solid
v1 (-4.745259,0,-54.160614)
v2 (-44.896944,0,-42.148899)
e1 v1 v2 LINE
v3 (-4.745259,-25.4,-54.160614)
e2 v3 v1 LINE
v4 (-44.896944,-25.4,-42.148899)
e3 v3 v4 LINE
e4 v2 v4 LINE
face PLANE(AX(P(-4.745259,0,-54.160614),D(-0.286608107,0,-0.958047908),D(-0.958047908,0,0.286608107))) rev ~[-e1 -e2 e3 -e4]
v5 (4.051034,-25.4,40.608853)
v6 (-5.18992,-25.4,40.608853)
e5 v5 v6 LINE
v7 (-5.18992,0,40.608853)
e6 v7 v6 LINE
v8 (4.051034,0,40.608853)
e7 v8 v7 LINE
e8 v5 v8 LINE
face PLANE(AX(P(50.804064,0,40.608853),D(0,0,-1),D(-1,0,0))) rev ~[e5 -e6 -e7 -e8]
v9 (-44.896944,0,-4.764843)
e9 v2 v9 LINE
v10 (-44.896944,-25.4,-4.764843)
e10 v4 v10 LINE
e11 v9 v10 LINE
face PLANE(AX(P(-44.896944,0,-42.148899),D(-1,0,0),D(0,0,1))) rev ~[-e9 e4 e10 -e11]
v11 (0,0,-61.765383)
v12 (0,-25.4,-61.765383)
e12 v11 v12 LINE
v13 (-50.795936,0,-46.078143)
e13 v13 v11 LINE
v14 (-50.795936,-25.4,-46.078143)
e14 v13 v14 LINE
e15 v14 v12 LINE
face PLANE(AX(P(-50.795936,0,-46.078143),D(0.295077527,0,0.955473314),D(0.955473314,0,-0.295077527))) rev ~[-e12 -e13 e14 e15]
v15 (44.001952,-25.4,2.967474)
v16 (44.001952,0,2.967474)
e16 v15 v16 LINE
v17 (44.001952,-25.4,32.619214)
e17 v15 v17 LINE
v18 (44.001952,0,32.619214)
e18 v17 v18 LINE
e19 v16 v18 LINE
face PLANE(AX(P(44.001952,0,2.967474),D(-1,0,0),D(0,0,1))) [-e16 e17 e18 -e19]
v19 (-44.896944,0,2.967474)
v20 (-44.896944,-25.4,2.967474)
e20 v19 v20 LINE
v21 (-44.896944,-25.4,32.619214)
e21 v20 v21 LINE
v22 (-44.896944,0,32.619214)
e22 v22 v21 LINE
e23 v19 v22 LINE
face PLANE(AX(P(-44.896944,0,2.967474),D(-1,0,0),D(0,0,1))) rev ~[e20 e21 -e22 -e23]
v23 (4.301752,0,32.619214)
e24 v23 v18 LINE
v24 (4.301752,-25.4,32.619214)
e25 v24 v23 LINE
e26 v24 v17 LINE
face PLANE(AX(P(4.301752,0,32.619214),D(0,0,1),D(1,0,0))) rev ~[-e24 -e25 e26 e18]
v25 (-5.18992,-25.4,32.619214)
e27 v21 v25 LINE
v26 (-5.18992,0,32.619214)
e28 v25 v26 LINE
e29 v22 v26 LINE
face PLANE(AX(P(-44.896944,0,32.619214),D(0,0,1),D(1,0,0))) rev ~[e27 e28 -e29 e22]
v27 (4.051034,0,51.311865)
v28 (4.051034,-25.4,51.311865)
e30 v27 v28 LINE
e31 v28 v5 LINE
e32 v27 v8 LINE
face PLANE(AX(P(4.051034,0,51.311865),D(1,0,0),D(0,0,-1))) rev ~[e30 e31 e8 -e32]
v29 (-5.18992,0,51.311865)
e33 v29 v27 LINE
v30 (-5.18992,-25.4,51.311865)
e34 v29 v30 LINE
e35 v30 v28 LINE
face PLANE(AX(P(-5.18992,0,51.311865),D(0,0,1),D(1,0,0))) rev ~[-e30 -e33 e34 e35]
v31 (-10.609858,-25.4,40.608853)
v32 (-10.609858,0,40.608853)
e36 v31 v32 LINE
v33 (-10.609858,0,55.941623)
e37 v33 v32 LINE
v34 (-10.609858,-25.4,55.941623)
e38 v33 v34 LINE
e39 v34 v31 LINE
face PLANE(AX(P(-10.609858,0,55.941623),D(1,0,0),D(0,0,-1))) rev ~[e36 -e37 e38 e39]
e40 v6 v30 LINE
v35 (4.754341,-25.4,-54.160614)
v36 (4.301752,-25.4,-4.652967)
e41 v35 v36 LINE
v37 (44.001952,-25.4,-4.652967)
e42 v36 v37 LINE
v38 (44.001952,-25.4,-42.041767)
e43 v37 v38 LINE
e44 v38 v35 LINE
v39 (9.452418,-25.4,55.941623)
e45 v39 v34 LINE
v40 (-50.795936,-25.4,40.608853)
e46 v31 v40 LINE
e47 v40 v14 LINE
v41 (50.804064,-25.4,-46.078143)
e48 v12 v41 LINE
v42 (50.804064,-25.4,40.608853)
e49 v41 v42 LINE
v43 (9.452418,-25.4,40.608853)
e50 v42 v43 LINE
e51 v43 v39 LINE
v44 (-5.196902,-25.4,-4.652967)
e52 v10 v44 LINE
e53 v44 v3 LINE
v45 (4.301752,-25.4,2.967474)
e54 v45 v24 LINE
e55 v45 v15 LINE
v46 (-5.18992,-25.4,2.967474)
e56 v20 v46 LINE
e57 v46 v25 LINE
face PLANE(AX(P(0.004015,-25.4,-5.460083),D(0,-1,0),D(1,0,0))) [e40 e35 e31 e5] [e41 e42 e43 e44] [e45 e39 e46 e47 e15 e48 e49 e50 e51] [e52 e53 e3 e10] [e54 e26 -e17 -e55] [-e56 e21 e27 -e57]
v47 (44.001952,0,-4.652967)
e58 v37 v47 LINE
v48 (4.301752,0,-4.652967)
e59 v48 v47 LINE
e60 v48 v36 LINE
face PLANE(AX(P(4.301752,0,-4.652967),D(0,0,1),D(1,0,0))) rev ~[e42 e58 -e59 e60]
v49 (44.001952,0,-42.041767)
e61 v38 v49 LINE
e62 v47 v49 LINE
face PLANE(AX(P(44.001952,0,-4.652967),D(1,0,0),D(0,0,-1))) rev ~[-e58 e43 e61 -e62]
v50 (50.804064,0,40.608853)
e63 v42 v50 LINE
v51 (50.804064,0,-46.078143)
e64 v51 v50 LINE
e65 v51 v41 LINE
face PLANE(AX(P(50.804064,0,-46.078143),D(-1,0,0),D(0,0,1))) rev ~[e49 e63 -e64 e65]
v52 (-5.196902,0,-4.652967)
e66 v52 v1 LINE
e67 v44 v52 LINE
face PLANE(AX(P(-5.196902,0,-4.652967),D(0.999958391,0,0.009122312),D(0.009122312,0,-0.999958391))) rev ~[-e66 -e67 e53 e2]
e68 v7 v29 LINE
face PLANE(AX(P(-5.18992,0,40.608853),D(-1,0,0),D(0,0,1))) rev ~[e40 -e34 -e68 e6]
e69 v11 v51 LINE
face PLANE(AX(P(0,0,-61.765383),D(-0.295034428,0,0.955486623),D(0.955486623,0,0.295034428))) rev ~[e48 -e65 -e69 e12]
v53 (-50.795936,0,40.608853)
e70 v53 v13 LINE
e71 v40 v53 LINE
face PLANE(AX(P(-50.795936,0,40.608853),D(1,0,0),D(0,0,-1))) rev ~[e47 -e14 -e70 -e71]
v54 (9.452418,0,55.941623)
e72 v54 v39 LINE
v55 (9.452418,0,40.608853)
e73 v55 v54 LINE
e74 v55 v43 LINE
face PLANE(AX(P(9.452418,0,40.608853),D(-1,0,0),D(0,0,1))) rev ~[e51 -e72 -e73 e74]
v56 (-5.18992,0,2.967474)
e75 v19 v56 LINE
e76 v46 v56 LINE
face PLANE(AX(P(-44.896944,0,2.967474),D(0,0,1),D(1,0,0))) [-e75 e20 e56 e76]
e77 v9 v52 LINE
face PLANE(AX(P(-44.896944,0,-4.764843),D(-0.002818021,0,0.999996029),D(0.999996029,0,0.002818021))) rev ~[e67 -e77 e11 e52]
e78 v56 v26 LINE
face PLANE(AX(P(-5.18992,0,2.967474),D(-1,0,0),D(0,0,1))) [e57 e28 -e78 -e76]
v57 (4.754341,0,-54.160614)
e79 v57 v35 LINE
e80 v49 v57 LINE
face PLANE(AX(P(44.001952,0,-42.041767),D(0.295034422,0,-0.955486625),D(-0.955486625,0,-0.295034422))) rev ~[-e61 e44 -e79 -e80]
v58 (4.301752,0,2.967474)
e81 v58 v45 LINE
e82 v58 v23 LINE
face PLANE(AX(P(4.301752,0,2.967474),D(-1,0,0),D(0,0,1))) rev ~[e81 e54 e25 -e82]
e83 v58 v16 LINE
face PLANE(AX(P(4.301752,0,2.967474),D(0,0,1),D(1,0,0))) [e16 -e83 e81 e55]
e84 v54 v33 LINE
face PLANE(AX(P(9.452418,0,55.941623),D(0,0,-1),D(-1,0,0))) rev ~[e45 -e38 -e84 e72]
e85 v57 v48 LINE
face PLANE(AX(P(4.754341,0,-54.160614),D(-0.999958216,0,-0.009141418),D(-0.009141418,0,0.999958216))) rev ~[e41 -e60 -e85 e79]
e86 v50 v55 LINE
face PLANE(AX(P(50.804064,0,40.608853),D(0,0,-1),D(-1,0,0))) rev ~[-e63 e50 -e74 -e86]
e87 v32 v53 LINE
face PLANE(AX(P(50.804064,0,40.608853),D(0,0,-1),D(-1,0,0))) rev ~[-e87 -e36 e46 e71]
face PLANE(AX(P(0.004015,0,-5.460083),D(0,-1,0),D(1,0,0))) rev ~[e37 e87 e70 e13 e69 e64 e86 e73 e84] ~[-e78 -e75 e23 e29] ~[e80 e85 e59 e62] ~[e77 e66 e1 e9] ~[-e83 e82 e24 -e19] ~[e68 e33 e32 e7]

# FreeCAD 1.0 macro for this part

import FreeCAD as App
import Part
import Sketcher
Q = App.Units.Quantity

doc = App.newDocument("Part")
body = doc.addObject("PartDesign::Body", "Body")

sketch1 = doc.addObject("Sketcher::SketchObject", "Sketch")
body.addObject(sketch1)
sketch1.AttachmentSupport = (doc.XZ_Plane, [""])
sketch1.MapMode = "FlatFace"
sketch1.addGeometry(Part.LineSegment(App.Vector(-51, 41, 0), App.Vector(-51, -46, 0)), False)
sketch1.addGeometry(Part.LineSegment(App.Vector(-51, -46, 0), App.Vector(0, -62, 0)), False)
sketch1.addGeometry(Part.LineSegment(App.Vector(0, -62, 0), App.Vector(51, -46, 0)), False)
sketch1.addGeometry(Part.LineSegment(App.Vector(51, -46, 0), App.Vector(51, 41, 0)), False)
sketch1.addGeometry(Part.LineSegment(App.Vector(51, 41, 0), App.Vector(-51, 41, 0)), False)
sketch1.addGeometry(Part.LineSegment(App.Vector(-5, -54, 0), App.Vector(-45, -42, 0)), False)
sketch1.addGeometry(Part.LineSegment(App.Vector(-45, -42, 0), App.Vector(-45, -5, 0)), False)
sketch1.addGeometry(Part.LineSegment(App.Vector(-45, -5, 0), App.Vector(-5, -5, 0)), False)
sketch1.addGeometry(Part.LineSegment(App.Vector(-5, -5, 0), App.Vector(-5, -54, 0)), False)
sketch1.addGeometry(Part.LineSegment(App.Vector(44, -42, 0), App.Vector(5, -54, 0)), False)
sketch1.addGeometry(Part.LineSegment(App.Vector(5, -54, 0), App.Vector(4, -5, 0)), False)
sketch1.addGeometry(Part.LineSegment(App.Vector(4, -5, 0), App.Vector(44, -5, 0)), False)
sketch1.addGeometry(Part.LineSegment(App.Vector(44, -5, 0), App.Vector(44, -42, 0)), False)
sketch1.addGeometry(Part.LineSegment(App.Vector(-5, 3, 0), App.Vector(-45, 3, 0)), False)
sketch1.addGeometry(Part.LineSegment(App.Vector(-45, 3, 0), App.Vector(-45, 33, 0)), False)
sketch1.addGeometry(Part.LineSegment(App.Vector(-45, 33, 0), App.Vector(-5, 33, 0)), False)
sketch1.addGeometry(Part.LineSegment(App.Vector(-5, 33, 0), App.Vector(-5, 3, 0)), False)
sketch1.addGeometry(Part.LineSegment(App.Vector(44, 3, 0), App.Vector(4, 3, 0)), False)
sketch1.addGeometry(Part.LineSegment(App.Vector(4, 3, 0), App.Vector(4, 33, 0)), False)
sketch1.addGeometry(Part.LineSegment(App.Vector(4, 33, 0), App.Vector(44, 33, 0)), False)
sketch1.addGeometry(Part.LineSegment(App.Vector(44, 33, 0), App.Vector(44, 3, 0)), False)
sketch1.addConstraint(Sketcher.Constraint("Coincident", 0, 2, 1, 1))
sketch1.addConstraint(Sketcher.Constraint("Coincident", 1, 2, 2, 1))
sketch1.addConstraint(Sketcher.Constraint("Coincident", 2, 2, 3, 1))
sketch1.addConstraint(Sketcher.Constraint("Coincident", 3, 2, 4, 1))
sketch1.addConstraint(Sketcher.Constraint("Coincident", 4, 2, 0, 1))
sketch1.addConstraint(Sketcher.Constraint("Coincident", 5, 2, 6, 1))
sketch1.addConstraint(Sketcher.Constraint("Coincident", 6, 2, 7, 1))
sketch1.addConstraint(Sketcher.Constraint("Coincident", 7, 2, 8, 1))
sketch1.addConstraint(Sketcher.Constraint("Coincident", 8, 2, 5, 1))
sketch1.addConstraint(Sketcher.Constraint("Coincident", 9, 2, 10, 1))
sketch1.addConstraint(Sketcher.Constraint("Coincident", 10, 2, 11, 1))
sketch1.addConstraint(Sketcher.Constraint("Coincident", 11, 2, 12, 1))
sketch1.addConstraint(Sketcher.Constraint("Coincident", 12, 2, 9, 1))
sketch1.addConstraint(Sketcher.Constraint("Coincident", 13, 2, 14, 1))
sketch1.addConstraint(Sketcher.Constraint("Coincident", 14, 2, 15, 1))
sketch1.addConstraint(Sketcher.Constraint("Coincident", 15, 2, 16, 1))
sketch1.addConstraint(Sketcher.Constraint("Coincident", 16, 2, 13, 1))
sketch1.addConstraint(Sketcher.Constraint("Coincident", 17, 2, 18, 1))
sketch1.addConstraint(Sketcher.Constraint("Coincident", 18, 2, 19, 1))
sketch1.addConstraint(Sketcher.Constraint("Coincident", 19, 2, 20, 1))
sketch1.addConstraint(Sketcher.Constraint("Coincident", 20, 2, 17, 1))
sketch1.addConstraint(Sketcher.Constraint("Vertical", 0))
sketch1.addConstraint(Sketcher.Constraint("Vertical", 3))
sketch1.addConstraint(Sketcher.Constraint("Horizontal", 4))
sketch1.addConstraint(Sketcher.Constraint("Vertical", 6))
sketch1.addConstraint(Sketcher.Constraint("Horizontal", 11))
sketch1.addConstraint(Sketcher.Constraint("Vertical", 12))
sketch1.addConstraint(Sketcher.Constraint("Horizontal", 13))
sketch1.addConstraint(Sketcher.Constraint("Vertical", 14))
sketch1.addConstraint(Sketcher.Constraint("Horizontal", 15))
sketch1.addConstraint(Sketcher.Constraint("Vertical", 16))
sketch1.addConstraint(Sketcher.Constraint("Horizontal", 17))
sketch1.addConstraint(Sketcher.Constraint("Vertical", 18))
sketch1.addConstraint(Sketcher.Constraint("Horizontal", 19))
sketch1.addConstraint(Sketcher.Constraint("Vertical", 20))
sketch1.addConstraint(Sketcher.Constraint("PointOnObject", 1, 2, -2))
sketch1.addConstraint(Sketcher.Constraint("Parallel", 2, 9))
sketch1.addConstraint(Sketcher.Constraint("Horizontal", 0, 2, 2, 2))
sketch1.addConstraint(Sketcher.Constraint("Horizontal", 8, 2, 9, 2))
sketch1.addConstraint(Sketcher.Constraint("Horizontal", 7, 2, 10, 2))
sketch1.addConstraint(Sketcher.Constraint("Horizontal", 16, 2, 17, 2))
sketch1.addConstraint(Sketcher.Constraint("Horizontal", 15, 2, 18, 2))
sketch1.addConstraint(Sketcher.Constraint("Vertical", 6, 2, 13, 2))
sketch1.addConstraint(Sketcher.Constraint("Vertical", 10, 2, 17, 2))
sketch1.addConstraint(Sketcher.Constraint("Vertical", 12, 2, 19, 2))
sketch1.addConstraint(Sketcher.Constraint("DistanceX", 4, 2, 4, 1, Q("4 in")))
sketch1.addConstraint(Sketcher.Constraint("DistanceX", 11, 1, 11, 2, Q("1.563 in")))
sketch1.addConstraint(Sketcher.Constraint("DistanceY", 12, 2, 12, 1, Q("1.472 in")))
sketch1.addConstraint(Sketcher.Constraint("Distance", 7, Q("1.563 in")))
sketch1.addConstraint(Sketcher.Constraint("DistanceX", 8, 2, 9, 2, Q("0.374 in")))
sketch1.addConstraint(Sketcher.Constraint("DistanceY", 0, 2, -1, 1, Q("1.8141001 in")))
sketch1.addConstraint(Sketcher.Constraint("DistanceY", 14, 1, 14, 2, Q("29.651739 mm")))
sketch1.addConstraint(Sketcher.Constraint("DistanceY", 5, 2, -1, 1, Q("42.148899 mm")))
sketch1.addConstraint(Sketcher.Constraint("DistanceX", 7, 2, -1, 1, Q("5.196902 mm")))
sketch1.addConstraint(Sketcher.Constraint("DistanceY", 0, 2, 6, 2, Q("41.3133 mm")))
sketch1.addConstraint(Sketcher.Constraint("Distance", 2, Q("53.170879 mm")))
sketch1.addConstraint(Sketcher.Constraint("DistanceX", 13, 2, 13, 1, Q("39.707024 mm")))
sketch1.addConstraint(Sketcher.Constraint("DistanceY", 0, 2, 0, 1, Q("86.686996 mm")))
sketch1.addConstraint(Sketcher.Constraint("DistanceX", 8, 2, -1, 1, Q("4.745259 mm")))
sketch1.addConstraint(Sketcher.Constraint("DistanceX", -1, 1, 10, 2, Q("4.301752 mm")))
sketch1.addConstraint(Sketcher.Constraint("DistanceY", 1, 2, 0, 2, Q("15.68724 mm")))
sketch1.addConstraint(Sketcher.Constraint("DistanceY", 5, 2, 7, 2, Q("37.495932 mm")))
sketch1.addConstraint(Sketcher.Constraint("DistanceY", 13, 2, 4, 2, Q("37.641379 mm")))
pad1 = doc.addObject("PartDesign::Pad", "Pad")
body.addObject(pad1)
pad1.Profile = sketch1
pad1.Length = Q("0.73 in")

sketch2 = doc.addObject("Sketcher::SketchObject", "Sketch001")
body.addObject(sketch2)
sketch2.AttachmentSupport = (doc.XZ_Plane, [""])
sketch2.MapMode = "FlatFace"
sketch2.addGeometry(Part.LineSegment(App.Vector(-51, 41, 0), App.Vector(-51, -46, 0)), False)
sketch2.addGeometry(Part.LineSegment(App.Vector(-51, -46, 0), App.Vector(0, -62, 0)), False)
sketch2.addGeometry(Part.LineSegment(App.Vector(0, -62, 0), App.Vector(51, -46, 0)), False)
sketch2.addGeometry(Part.LineSegment(App.Vector(51, -46, 0), App.Vector(51, 41, 0)), False)
sketch2.addGeometry(Part.LineSegment(App.Vector(51, 41, 0), App.Vector(9, 41, 0)), False)
sketch2.addGeometry(Part.LineSegment(App.Vector(9, 41, 0), App.Vector(9, 56, 0)), False)
sketch2.addGeometry(Part.LineSegment(App.Vector(9, 56, 0), App.Vector(-11, 56, 0)), False)
sketch2.addGeometry(Part.LineSegment(App.Vector(-11, 56, 0), App.Vector(-11, 41, 0)), False)
sketch2.addGeometry(Part.LineSegment(App.Vector(-11, 41, 0), App.Vector(-51, 41, 0)), False)
sketch2.addGeometry(Part.LineSegment(App.Vector(4, 41, 0), App.Vector(-5, 41, 0)), False)
sketch2.addGeometry(Part.LineSegment(App.Vector(-5, 41, 0), App.Vector(-5, 51, 0)), False)
sketch2.addGeometry(Part.LineSegment(App.Vector(-5, 51, 0), App.Vector(4, 51, 0)), False)
sketch2.addGeometry(Part.LineSegment(App.Vector(4, 51, 0), App.Vector(4, 41, 0)), False)
sketch2.addGeometry(Part.LineSegment(App.Vector(-5, -54, 0), App.Vector(-45, -42, 0)), False)
sketch2.addGeometry(Part.LineSegment(App.Vector(-45, -42, 0), App.Vector(-45, -5, 0)), False)
sketch2.addGeometry(Part.LineSegment(App.Vector(-45, -5, 0), App.Vector(-5, -5, 0)), False)
sketch2.addGeometry(Part.LineSegment(App.Vector(-5, -5, 0), App.Vector(-5, -54, 0)), False)
sketch2.addGeometry(Part.LineSegment(App.Vector(44, -42, 0), App.Vector(5, -54, 0)), False)
sketch2.addGeometry(Part.LineSegment(App.Vector(5, -54, 0), App.Vector(4, -5, 0)), False)
sketch2.addGeometry(Part.LineSegment(App.Vector(4, -5, 0), App.Vector(44, -5, 0)), False)
sketch2.addGeometry(Part.LineSegment(App.Vector(44, -5, 0), App.Vector(44, -42, 0)), False)
sketch2.addGeometry(Part.LineSegment(App.Vector(-5, 3, 0), App.Vector(-45, 3, 0)), False)
sketch2.addGeometry(Part.LineSegment(App.Vector(-45, 3, 0), App.Vector(-45, 33, 0)), False)
sketch2.addGeometry(Part.LineSegment(App.Vector(-45, 33, 0), App.Vector(-5, 33, 0)), False)
sketch2.addGeometry(Part.LineSegment(App.Vector(-5, 33, 0), App.Vector(-5, 3, 0)), False)
sketch2.addGeometry(Part.LineSegment(App.Vector(44, 3, 0), App.Vector(4, 3, 0)), False)
sketch2.addGeometry(Part.LineSegment(App.Vector(4, 3, 0), App.Vector(4, 33, 0)), False)
sketch2.addGeometry(Part.LineSegment(App.Vector(4, 33, 0), App.Vector(44, 33, 0)), False)
sketch2.addGeometry(Part.LineSegment(App.Vector(44, 33, 0), App.Vector(44, 3, 0)), False)
sketch2.addConstraint(Sketcher.Constraint("Coincident", 0, 2, 1, 1))
sketch2.addConstraint(Sketcher.Constraint("Coincident", 1, 2, 2, 1))
sketch2.addConstraint(Sketcher.Constraint("Coincident", 2, 2, 3, 1))
sketch2.addConstraint(Sketcher.Constraint("Coincident", 3, 2, 4, 1))
sketch2.addConstraint(Sketcher.Constraint("Coincident", 4, 2, 5, 1))
sketch2.addConstraint(Sketcher.Constraint("Coincident", 5, 2, 6, 1))
sketch2.addConstraint(Sketcher.Constraint("Coincident", 6, 2, 7, 1))
sketch2.addConstraint(Sketcher.Constraint("Coincident", 7, 2, 8, 1))
sketch2.addConstraint(Sketcher.Constraint("Coincident", 8, 2, 0, 1))
sketch2.addConstraint(Sketcher.Constraint("Coincident", 9, 2, 10, 1))
sketch2.addConstraint(Sketcher.Constraint("Coincident", 10, 2, 11, 1))
sketch2.addConstraint(Sketcher.Constraint("Coincident", 11, 2, 12, 1))
sketch2.addConstraint(Sketcher.Constraint("Coincident", 12, 2, 9, 1))
sketch2.addConstraint(Sketcher.Constraint("Coincident", 13, 2, 14, 1))
sketch2.addConstraint(Sketcher.Constraint("Coincident", 14, 2, 15, 1))
sketch2.addConstraint(Sketcher.Constraint("Coincident", 15, 2, 16, 1))
sketch2.addConstraint(Sketcher.Constraint("Coincident", 16, 2, 13, 1))
sketch2.addConstraint(Sketcher.Constraint("Coincident", 17, 2, 18, 1))
sketch2.addConstraint(Sketcher.Constraint("Coincident", 18, 2, 19, 1))
sketch2.addConstraint(Sketcher.Constraint("Coincident", 19, 2, 20, 1))
sketch2.addConstraint(Sketcher.Constraint("Coincident", 20, 2, 17, 1))
sketch2.addConstraint(Sketcher.Constraint("Coincident", 21, 2, 22, 1))
sketch2.addConstraint(Sketcher.Constraint("Coincident", 22, 2, 23, 1))
sketch2.addConstraint(Sketcher.Constraint("Coincident", 23, 2, 24, 1))
sketch2.addConstraint(Sketcher.Constraint("Coincident", 24, 2, 21, 1))
sketch2.addConstraint(Sketcher.Constraint("Coincident", 25, 2, 26, 1))
sketch2.addConstraint(Sketcher.Constraint("Coincident", 26, 2, 27, 1))
sketch2.addConstraint(Sketcher.Constraint("Coincident", 27, 2, 28, 1))
sketch2.addConstraint(Sketcher.Constraint("Coincident", 28, 2, 25, 1))
sketch2.addConstraint(Sketcher.Constraint("Vertical", 0))
sketch2.addConstraint(Sketcher.Constraint("Vertical", 3))
sketch2.addConstraint(Sketcher.Constraint("Horizontal", 4))
sketch2.addConstraint(Sketcher.Constraint("Vertical", 5))
sketch2.addConstraint(Sketcher.Constraint("Horizontal", 6))
sketch2.addConstraint(Sketcher.Constraint("Vertical", 7))
sketch2.addConstraint(Sketcher.Constraint("Horizontal", 8))
sketch2.addConstraint(Sketcher.Constraint("Horizontal", 9))
sketch2.addConstraint(Sketcher.Constraint("Vertical", 10))
sketch2.addConstraint(Sketcher.Constraint("Horizontal", 11))
sketch2.addConstraint(Sketcher.Constraint("Vertical", 12))
sketch2.addConstraint(Sketcher.Constraint("Vertical", 14))
sketch2.addConstraint(Sketcher.Constraint("Horizontal", 19))
sketch2.addConstraint(Sketcher.Constraint("Vertical", 20))
sketch2.addConstraint(Sketcher.Constraint("Horizontal", 21))
sketch2.addConstraint(Sketcher.Constraint("Vertical", 22))
sketch2.addConstraint(Sketcher.Constraint("Horizontal", 23))
sketch2.addConstraint(Sketcher.Constraint("Vertical", 24))
sketch2.addConstraint(Sketcher.Constraint("Horizontal", 25))
sketch2.addConstraint(Sketcher.Constraint("Vertical", 26))
sketch2.addConstraint(Sketcher.Constraint("Horizontal", 27))
sketch2.addConstraint(Sketcher.Constraint("Vertical", 28))
sketch2.addConstraint(Sketcher.Constraint("PointOnObject", 1, 2, -2))
sketch2.addConstraint(Sketcher.Constraint("Parallel", 2, 17))
sketch2.addConstraint(Sketcher.Constraint("Horizontal", 0, 2, 2, 2))
sketch2.addConstraint(Sketcher.Constraint("Horizontal", 4, 2, 7, 2))
sketch2.addConstraint(Sketcher.Constraint("Horizontal", 8, 2, 9, 2))
sketch2.addConstraint(Sketcher.Constraint("Horizontal", 16, 2, 17, 2))
sketch2.addConstraint(Sketcher.Constraint("Horizontal", 15, 2, 18, 2))
sketch2.addConstraint(Sketcher.Constraint("Horizontal", 24, 2, 25, 2))
sketch2.addConstraint(Sketcher.Constraint("Horizontal", 23, 2, 26, 2))
sketch2.addConstraint(Sketcher.Constraint("Vertical", 14, 2, 21, 2))
sketch2.addConstraint(Sketcher.Constraint("Vertical", 10, 2, 23, 2))
sketch2.addConstraint(Sketcher.Constraint("Vertical", 18, 2, 25, 2))
sketch2.addConstraint(Sketcher.Constraint("Vertical", 20, 2, 27, 2))
sketch2.addConstraint(Sketcher.Constraint("DistanceX", 0, 2, 2, 2, Q("4 in")))
sketch2.addConstraint(Sketcher.Constraint("DistanceX", 19, 1, 19, 2, Q("1.563 in")))
sketch2.addConstraint(Sketcher.Constraint("DistanceY", 20, 2, 20, 1, Q("1.472 in")))
sketch2.addConstraint(Sketcher.Constraint("Distance", 15, Q("1.563 in")))
sketch2.addConstraint(Sketcher.Constraint("DistanceX", 16, 2, 17, 2, Q("0.374 in")))
sketch2.addConstraint(Sketcher.Constraint("DistanceY", 0, 2, -1, 1, Q("1.8141001 in")))
sketch2.addConstraint(Sketcher.Constraint("DistanceY", 5, 1, 5, 2, Q("15.33277 mm")))
sketch2.addConstraint(Sketcher.Constraint("DistanceY", 10, 1, 10, 2, Q("10.703012 mm")))
sketch2.addConstraint(Sketcher.Constraint("DistanceY", 22, 1, 22, 2, Q("29.651739 mm")))
sketch2.addConstraint(Sketcher.Constraint("DistanceY", 13, 2, -1, 1, Q("42.148899 mm")))
sketch2.addConstraint(Sketcher.Constraint("DistanceX", 15, 2, -1, 1, Q("5.196902 mm")))
sketch2.addConstraint(Sketcher.Constraint("DistanceY", 0, 2, 14, 2, Q("41.3133 mm")))
sketch2.addConstraint(Sketcher.Constraint("Distance", 2, Q("53.170879 mm")))
sketch2.addConstraint(Sketcher.Constraint("DistanceX", 4, 2, 4, 1, Q("41.351646 mm")))
sketch2.addConstraint(Sketcher.Constraint("DistanceX", 6, 2, 6, 1, Q("20.062276 mm")))
sketch2.addConstraint(Sketcher.Constraint("DistanceX", 9, 2, 9, 1, Q("9.240954 mm")))
sketch2.addConstraint(Sketcher.Constraint("DistanceX", 21, 2, 21, 1, Q("39.707024 mm")))
sketch2.addConstraint(Sketcher.Constraint("DistanceY", 0, 2, 0, 1, Q("86.686996 mm")))
sketch2.addConstraint(Sketcher.Constraint("DistanceX", 16, 2, -1, 1, Q("4.745259 mm")))
sketch2.addConstraint(Sketcher.Constraint("DistanceX", -1, 1, 18, 2, Q("4.301752 mm")))
sketch2.addConstraint(Sketcher.Constraint("DistanceY", 1, 2, 0, 2, Q("15.68724 mm")))
sketch2.addConstraint(Sketcher.Constraint("DistanceY", 15, 2, 9, 2, Q("45.26182 mm")))
sketch2.addConstraint(Sketcher.Constraint("DistanceY", 21, 2, 8, 2, Q("37.641379 mm")))
pad2 = doc.addObject("PartDesign::Pad", "Pad001")
body.addObject(pad2)
pad2.Profile = sketch2
pad2.Length = Q("1 in")

doc.recompute()
